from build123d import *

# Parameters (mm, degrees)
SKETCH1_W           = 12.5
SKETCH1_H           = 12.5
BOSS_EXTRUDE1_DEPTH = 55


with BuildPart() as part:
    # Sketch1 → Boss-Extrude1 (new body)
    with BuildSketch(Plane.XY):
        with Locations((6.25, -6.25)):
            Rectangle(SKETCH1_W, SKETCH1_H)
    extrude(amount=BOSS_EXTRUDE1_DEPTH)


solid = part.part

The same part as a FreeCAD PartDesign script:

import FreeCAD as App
import Part
import Sketcher

V = App.Vector
Q = App.Units.Quantity

doc = App.newDocument("Part")
body = doc.addObject("PartDesign::Body", "Body")

sketch1 = body.newObject("Sketcher::SketchObject", "Sketch")
sketch1.AttachmentSupport = (doc.getObject("XY_Plane"), [""])
sketch1.MapMode = "FlatFace"
sketch1.addGeometry([
    Part.LineSegment(V(0, 0, 0), V(0, -12.5, 0)),
    Part.LineSegment(V(0, -12.5, 0), V(12.5, -12.5, 0)),
    Part.LineSegment(V(12.5, -12.5, 0), V(12.5, 0, 0)),
    Part.LineSegment(V(12.5, 0, 0), V(0, 0, 0)),
], False)
sketch1.addConstraint([
    Sketcher.Constraint("Coincident", 0, 2, 1, 1),
    Sketcher.Constraint("Coincident", 1, 2, 2, 1),
    Sketcher.Constraint("Coincident", 2, 2, 3, 1),
    Sketcher.Constraint("Coincident", 3, 2, 0, 1),
    Sketcher.Constraint("Vertical", 0),
    Sketcher.Constraint("Horizontal", 1),
    Sketcher.Constraint("Vertical", 2),
    Sketcher.Constraint("Horizontal", 3),
    Sketcher.Constraint("Coincident", 3, 2, -1, 1),
    Sketcher.Constraint("Equal", 3, 0),
    Sketcher.Constraint("DistanceX", 1, 1, 1, 2, Q("12.5 mm")),
])
pad1 = body.newObject("PartDesign::Pad", "Pad")
pad1.Profile = sketch1
pad1.Length = 55

doc.recompute()
